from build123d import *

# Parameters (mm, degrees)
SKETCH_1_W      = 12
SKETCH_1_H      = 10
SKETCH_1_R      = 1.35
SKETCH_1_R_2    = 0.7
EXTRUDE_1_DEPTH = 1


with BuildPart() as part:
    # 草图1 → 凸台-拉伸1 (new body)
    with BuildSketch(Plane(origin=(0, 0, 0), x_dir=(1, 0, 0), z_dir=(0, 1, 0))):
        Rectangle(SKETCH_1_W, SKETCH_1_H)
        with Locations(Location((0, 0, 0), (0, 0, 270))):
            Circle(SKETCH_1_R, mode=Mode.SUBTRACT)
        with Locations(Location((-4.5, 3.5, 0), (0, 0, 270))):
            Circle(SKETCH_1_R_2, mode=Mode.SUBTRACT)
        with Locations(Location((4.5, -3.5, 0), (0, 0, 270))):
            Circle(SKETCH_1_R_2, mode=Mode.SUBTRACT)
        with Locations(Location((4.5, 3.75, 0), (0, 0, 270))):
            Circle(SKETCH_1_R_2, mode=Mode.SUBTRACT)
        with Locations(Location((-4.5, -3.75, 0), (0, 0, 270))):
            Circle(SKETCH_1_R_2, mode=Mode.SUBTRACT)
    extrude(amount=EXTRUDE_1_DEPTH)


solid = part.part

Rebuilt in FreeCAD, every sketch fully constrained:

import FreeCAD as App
import Part
import Sketcher

doc = App.newDocument("Part")
body = doc.addObject("PartDesign::Body", "Body")

# Sketch on XZ plane
sketch1 = body.newObject("Sketcher::SketchObject", "Sketch")
sketch1.AttachmentSupport = (doc.getObject("XZ_Plane"), [""])
sketch1.MapMode = "FlatFace"
sketch1.addGeometry(Part.LineSegment(App.Vector(-6, -5, 0), App.Vector(-6, 5, 0)), False)
sketch1.addGeometry(Part.LineSegment(App.Vector(-6, 5, 0), App.Vector(6, 5, 0)), False)
sketch1.addGeometry(Part.LineSegment(App.Vector(6, 5, 0), App.Vector(6, -5, 0)), False)
sketch1.addGeometry(Part.LineSegment(App.Vector(6, -5, 0), App.Vector(-6, -5, 0)), False)
sketch1.addGeometry(Part.Circle(App.Vector(-4.5, 3.8, 0), App.Vector(0, 0, 1), 0.7), False)
sketch1.addGeometry(Part.Circle(App.Vector(4.5, 3.5, 0), App.Vector(0, 0, 1), 0.7), False)
sketch1.addGeometry(Part.Circle(App.Vector(-4.5, -3.5, 0), App.Vector(0, 0, 1), 0.7), False)
sketch1.addGeometry(Part.Circle(App.Vector(0, 0, 0), App.Vector(0, 0, 1), 1.4), False)
sketch1.addGeometry(Part.Circle(App.Vector(4.5, -3.8, 0), App.Vector(0, 0, 1), 0.7), False)
sketch1.addConstraint(Sketcher.Constraint("Coincident", 0, 2, 1, 1))
sketch1.addConstraint(Sketcher.Constraint("Coincident", 1, 2, 2, 1))
sketch1.addConstraint(Sketcher.Constraint("Coincident", 2, 2, 3, 1))
sketch1.addConstraint(Sketcher.Constraint("Coincident", 3, 2, 0, 1))
sketch1.addConstraint(Sketcher.Constraint("Vertical", 0))
sketch1.addConstraint(Sketcher.Constraint("Horizontal", 1))
sketch1.addConstraint(Sketcher.Constraint("Vertical", 2))
sketch1.addConstraint(Sketcher.Constraint("Horizontal", 3))
sketch1.addConstraint(Sketcher.Constraint("Coincident", 7, 3, -1, 1))
sketch1.addConstraint(Sketcher.Constraint("Equal", 4, 5))
sketch1.addConstraint(Sketcher.Constraint("Equal", 5, 6))
sketch1.addConstraint(Sketcher.Constraint("Equal", 6, 8))
sketch1.addConstraint(Sketcher.Constraint("Symmetric", 5, 3, 6, 3, -1, 1))
sketch1.addConstraint(Sketcher.Constraint("Symmetric", 4, 3, 8, 3, -1, 1))
sketch1.addConstraint(Sketcher.Constraint("Symmetric", 0, 2, 2, 2, -1, 1))
sketch1.addConstraint(Sketcher.Constraint("Vertical", 4, 3, 6, 3))
sketch1.addConstraint(Sketcher.Constraint("Diameter", 4, 1.4))
sketch1.addConstraint(Sketcher.Constraint("Diameter", 7, 2.7))
sketch1.addConstraint(Sketcher.Constraint("DistanceX", 1, 1, 1, 2, 12.0))
sketch1.addConstraint(Sketcher.Constraint("DistanceY", 0, 1, 0, 2, 10.0))
sketch1.addConstraint(Sketcher.Constraint("DistanceX", 4, 3, 5, 3, 9.0))
sketch1.addConstraint(Sketcher.Constraint("DistanceY", 6, 3, 5, 3, 7.0))
sketch1.addConstraint(Sketcher.Constraint("DistanceY", 8, 3, 4, 3, 7.5))
pad1 = body.newObject("PartDesign::Pad", "Pad")
pad1.Profile = sketch1
pad1.Length = 1
pad1.Reversed = True

doc.recompute()
